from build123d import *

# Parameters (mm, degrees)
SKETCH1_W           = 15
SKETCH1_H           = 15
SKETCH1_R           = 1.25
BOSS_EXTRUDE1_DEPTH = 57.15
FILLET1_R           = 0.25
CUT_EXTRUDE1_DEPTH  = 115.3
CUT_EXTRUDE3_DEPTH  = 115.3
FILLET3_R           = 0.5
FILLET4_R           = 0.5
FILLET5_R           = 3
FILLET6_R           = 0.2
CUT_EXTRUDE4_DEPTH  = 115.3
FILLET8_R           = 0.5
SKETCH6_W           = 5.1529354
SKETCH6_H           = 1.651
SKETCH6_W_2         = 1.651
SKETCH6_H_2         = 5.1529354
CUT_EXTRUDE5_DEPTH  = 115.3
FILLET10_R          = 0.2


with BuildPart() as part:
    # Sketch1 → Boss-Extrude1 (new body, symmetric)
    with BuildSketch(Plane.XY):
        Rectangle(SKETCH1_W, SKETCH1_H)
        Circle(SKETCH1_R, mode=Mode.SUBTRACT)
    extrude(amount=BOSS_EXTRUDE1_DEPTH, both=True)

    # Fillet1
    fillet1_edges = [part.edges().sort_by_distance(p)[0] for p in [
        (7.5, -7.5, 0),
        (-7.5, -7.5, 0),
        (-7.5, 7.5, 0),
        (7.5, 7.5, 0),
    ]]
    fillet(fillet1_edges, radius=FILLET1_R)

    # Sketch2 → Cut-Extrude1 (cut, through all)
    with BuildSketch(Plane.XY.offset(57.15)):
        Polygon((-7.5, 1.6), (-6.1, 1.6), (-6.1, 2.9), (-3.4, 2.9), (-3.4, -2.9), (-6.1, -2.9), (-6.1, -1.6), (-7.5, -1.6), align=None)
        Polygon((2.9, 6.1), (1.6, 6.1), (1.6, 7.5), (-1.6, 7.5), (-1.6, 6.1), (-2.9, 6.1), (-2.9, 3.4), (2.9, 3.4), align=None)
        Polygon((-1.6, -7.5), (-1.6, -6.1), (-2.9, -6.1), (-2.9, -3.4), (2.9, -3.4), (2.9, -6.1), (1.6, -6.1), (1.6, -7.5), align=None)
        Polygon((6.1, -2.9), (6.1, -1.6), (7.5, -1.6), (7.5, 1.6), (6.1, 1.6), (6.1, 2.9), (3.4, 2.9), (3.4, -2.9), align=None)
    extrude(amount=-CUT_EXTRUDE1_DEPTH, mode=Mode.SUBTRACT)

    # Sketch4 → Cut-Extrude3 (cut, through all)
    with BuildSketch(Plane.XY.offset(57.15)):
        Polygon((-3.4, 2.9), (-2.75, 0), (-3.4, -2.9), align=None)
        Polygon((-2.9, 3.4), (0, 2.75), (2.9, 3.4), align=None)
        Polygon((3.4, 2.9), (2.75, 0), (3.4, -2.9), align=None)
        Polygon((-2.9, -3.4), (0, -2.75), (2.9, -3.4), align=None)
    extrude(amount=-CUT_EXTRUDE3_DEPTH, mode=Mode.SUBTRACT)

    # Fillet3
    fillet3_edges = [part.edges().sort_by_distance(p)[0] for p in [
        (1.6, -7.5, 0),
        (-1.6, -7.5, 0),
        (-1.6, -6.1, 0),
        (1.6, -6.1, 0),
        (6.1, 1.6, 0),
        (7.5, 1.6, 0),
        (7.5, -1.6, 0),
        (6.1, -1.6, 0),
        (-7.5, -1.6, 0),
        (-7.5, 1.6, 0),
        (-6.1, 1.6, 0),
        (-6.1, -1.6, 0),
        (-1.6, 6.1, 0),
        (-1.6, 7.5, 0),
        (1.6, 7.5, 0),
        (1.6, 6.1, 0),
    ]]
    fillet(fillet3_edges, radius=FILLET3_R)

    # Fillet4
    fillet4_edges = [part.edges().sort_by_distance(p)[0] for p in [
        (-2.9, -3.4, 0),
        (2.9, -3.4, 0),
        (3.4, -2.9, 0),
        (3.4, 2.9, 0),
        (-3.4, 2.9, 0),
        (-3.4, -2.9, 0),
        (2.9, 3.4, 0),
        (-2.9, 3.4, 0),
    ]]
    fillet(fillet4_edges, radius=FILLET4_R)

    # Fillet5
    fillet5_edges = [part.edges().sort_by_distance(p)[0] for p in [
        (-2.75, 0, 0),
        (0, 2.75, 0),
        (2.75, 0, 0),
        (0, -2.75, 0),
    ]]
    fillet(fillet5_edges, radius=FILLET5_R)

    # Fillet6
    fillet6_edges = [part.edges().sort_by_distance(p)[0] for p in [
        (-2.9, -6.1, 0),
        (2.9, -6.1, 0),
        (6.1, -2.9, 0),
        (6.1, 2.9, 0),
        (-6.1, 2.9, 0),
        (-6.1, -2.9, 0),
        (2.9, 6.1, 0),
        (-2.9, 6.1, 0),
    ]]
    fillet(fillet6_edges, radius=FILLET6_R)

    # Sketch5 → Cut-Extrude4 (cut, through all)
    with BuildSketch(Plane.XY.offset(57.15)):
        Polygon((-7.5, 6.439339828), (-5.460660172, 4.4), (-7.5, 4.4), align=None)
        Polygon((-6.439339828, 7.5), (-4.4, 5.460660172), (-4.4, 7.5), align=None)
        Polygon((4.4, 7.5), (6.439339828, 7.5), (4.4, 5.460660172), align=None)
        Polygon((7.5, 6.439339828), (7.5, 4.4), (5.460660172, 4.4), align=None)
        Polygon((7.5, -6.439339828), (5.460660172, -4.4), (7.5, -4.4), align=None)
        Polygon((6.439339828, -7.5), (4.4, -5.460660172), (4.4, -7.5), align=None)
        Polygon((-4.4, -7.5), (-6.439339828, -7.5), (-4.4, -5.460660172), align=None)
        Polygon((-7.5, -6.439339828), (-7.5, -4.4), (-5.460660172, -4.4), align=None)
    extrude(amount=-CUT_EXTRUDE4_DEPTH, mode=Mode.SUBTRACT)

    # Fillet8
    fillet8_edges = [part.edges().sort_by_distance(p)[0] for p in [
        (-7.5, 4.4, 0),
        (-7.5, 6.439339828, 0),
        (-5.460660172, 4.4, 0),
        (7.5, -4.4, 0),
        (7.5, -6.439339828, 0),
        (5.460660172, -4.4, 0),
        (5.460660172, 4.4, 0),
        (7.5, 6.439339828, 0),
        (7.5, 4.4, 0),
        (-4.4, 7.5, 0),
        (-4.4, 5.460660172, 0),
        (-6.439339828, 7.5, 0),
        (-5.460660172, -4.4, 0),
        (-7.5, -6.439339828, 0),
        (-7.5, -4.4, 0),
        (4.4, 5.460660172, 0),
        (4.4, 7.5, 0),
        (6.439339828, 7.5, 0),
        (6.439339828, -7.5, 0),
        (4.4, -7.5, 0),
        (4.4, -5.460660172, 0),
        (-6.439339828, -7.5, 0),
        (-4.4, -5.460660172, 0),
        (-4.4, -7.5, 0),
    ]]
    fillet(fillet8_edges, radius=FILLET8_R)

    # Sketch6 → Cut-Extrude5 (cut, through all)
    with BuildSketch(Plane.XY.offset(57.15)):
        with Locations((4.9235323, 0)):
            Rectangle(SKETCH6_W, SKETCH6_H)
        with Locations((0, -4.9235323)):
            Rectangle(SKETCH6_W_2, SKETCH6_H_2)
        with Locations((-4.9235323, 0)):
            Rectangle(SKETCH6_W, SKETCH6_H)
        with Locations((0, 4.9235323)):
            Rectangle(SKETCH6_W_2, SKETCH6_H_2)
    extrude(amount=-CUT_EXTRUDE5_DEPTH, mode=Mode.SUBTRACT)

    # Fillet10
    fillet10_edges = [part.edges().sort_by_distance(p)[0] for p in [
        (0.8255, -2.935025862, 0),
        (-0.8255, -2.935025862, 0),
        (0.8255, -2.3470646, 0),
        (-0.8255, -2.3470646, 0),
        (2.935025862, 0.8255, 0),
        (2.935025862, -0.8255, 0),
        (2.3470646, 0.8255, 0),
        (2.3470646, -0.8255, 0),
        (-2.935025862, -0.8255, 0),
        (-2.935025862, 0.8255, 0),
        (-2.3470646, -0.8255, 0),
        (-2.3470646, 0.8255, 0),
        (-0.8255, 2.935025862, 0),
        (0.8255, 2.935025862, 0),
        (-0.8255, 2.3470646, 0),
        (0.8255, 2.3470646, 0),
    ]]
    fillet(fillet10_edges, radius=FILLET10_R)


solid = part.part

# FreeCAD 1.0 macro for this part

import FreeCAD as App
import Part
import Sketcher
from FreeCAD import Vector


def edges_at(feature, points):
    """Names of the edges that pass closest to the given points."""
    edges = feature.Shape.Edges
    near = lambda p: min(range(len(edges)), key=lambda i: edges[i].distToShape(Part.Vertex(*p))[0])
    return sorted({f"Edge{near(p) + 1}" for p in points})


def add_polygon(sketch, points):
    """Adds a closed chain of lines whose ends are joined by coincident constraints."""
    first, n = sketch.GeometryCount, len(points)
    for a, b in zip(points, points[1:] + points[:1]):
        sketch.addGeometry(Part.LineSegment(App.Vector(*a, 0), App.Vector(*b, 0)), False)
    for i in range(n):
        sketch.addConstraint(Sketcher.Constraint("Coincident", first + i, 2, first + (i + 1) % n, 1))

doc = App.newDocument("Part")
body = doc.addObject("PartDesign::Body", "Body")

# Sketch on XY plane
sketch1 = body.newObject("Sketcher::SketchObject", "Sketch")
sketch1.AttachmentSupport = (doc.getObject("XY_Plane"), [""])
sketch1.MapMode = "FlatFace"
add_polygon(sketch1, [(-7.5, 7.5), (-7.5, -7.5), (7.5, -7.5), (7.5, 7.5)])  # lines 0-3
sketch1.addGeometry(Part.Circle(Vector(0, 0, 0), Vector(0, 0, 1), 1.25), False)  # 4
sketch1.addConstraint(Sketcher.Constraint("Vertical", 0))
sketch1.addConstraint(Sketcher.Constraint("Horizontal", 1))
sketch1.addConstraint(Sketcher.Constraint("Vertical", 2))
sketch1.addConstraint(Sketcher.Constraint("Horizontal", 3))
sketch1.addConstraint(Sketcher.Constraint("Coincident", 4, 3, -1, 1))
sketch1.addConstraint(Sketcher.Constraint("Symmetric", 0, 2, 2, 2, -1, 1))
sketch1.addConstraint(Sketcher.Constraint("Equal", 3, 0))
sketch1.addConstraint(Sketcher.Constraint("Diameter", 4, 2.5))
sketch1.addConstraint(Sketcher.Constraint("DistanceX", 1, 1, 1, 2, 15.0))
pad1 = body.newObject("PartDesign::Pad", "Pad")
pad1.Profile = sketch1
pad1.Length = 114.3
pad1.Midplane = True
doc.recompute()

fillet = body.newObject("PartDesign::Fillet", "Fillet")
fillet.Base = (pad1, edges_at(pad1, [
    (7.5, -7.5, 0),
    (-7.5, -7.5, 0),
    (-7.5, 7.5, 0),
    (7.5, 7.5, 0),
]))
fillet.Radius = 0.25

# Sketch on XY plane
sketch2 = body.newObject("Sketcher::SketchObject", "Sketch001")
sketch2.AttachmentSupport = (doc.getObject("XY_Plane"), [""])
sketch2.MapMode = "FlatFace"
sketch2.AttachmentOffset = App.Placement(Vector(0, 0, 57.15), App.Rotation())
add_polygon(sketch2, [(-6.1, 1.6), (-7.5, 1.6), (-7.5, -1.6), (-6.1, -1.6), (-6.1, -2.9), (-3.4, -2.9), (-3.4, 2.9), (-6.1, 2.9)])  # lines 0-7
add_polygon(sketch2, [(2.9, 6.1), (1.6, 6.1), (1.6, 7.5), (-1.6, 7.5), (-1.6, 6.1), (-2.9, 6.1), (-2.9, 3.4), (2.9, 3.4)])  # lines 8-15
add_polygon(sketch2, [(-1.6, -6.1), (-1.6, -7.5), (1.6, -7.5), (1.6, -6.1), (2.9, -6.1), (2.9, -3.4), (-2.9, -3.4), (-2.9, -6.1)])  # lines 16-23
add_polygon(sketch2, [(6.1, -2.9), (6.1, -1.6), (7.5, -1.6), (7.5, 1.6), (6.1, 1.6), (6.1, 2.9), (3.4, 2.9), (3.4, -2.9)])  # lines 24-31
sketch2.addConstraint(Sketcher.Constraint("Horizontal", 0))
sketch2.addConstraint(Sketcher.Constraint("Vertical", 1))
sketch2.addConstraint(Sketcher.Constraint("Horizontal", 2))
sketch2.addConstraint(Sketcher.Constraint("Vertical", 3))
sketch2.addConstraint(Sketcher.Constraint("Horizontal", 4))
sketch2.addConstraint(Sketcher.Constraint("Vertical", 5))
sketch2.addConstraint(Sketcher.Constraint("Horizontal", 6))
sketch2.addConstraint(Sketcher.Constraint("Vertical", 7))
sketch2.addConstraint(Sketcher.Constraint("Horizontal", 8))
sketch2.addConstraint(Sketcher.Constraint("Vertical", 9))
sketch2.addConstraint(Sketcher.Constraint("Horizontal", 10))
sketch2.addConstraint(Sketcher.Constraint("Vertical", 11))
sketch2.addConstraint(Sketcher.Constraint("Horizontal", 12))
sketch2.addConstraint(Sketcher.Constraint("Vertical", 13))
sketch2.addConstraint(Sketcher.Constraint("Horizontal", 14))
sketch2.addConstraint(Sketcher.Constraint("Vertical", 15))
sketch2.addConstraint(Sketcher.Constraint("Vertical", 16))
sketch2.addConstraint(Sketcher.Constraint("Horizontal", 17))
sketch2.addConstraint(Sketcher.Constraint("Vertical", 18))
sketch2.addConstraint(Sketcher.Constraint("Horizontal", 19))
sketch2.addConstraint(Sketcher.Constraint("Vertical", 20))
sketch2.addConstraint(Sketcher.Constraint("Horizontal", 21))
sketch2.addConstraint(Sketcher.Constraint("Vertical", 22))
sketch2.addConstraint(Sketcher.Constraint("Horizontal", 23))
sketch2.addConstraint(Sketcher.Constraint("Vertical", 24))
sketch2.addConstraint(Sketcher.Constraint("Horizontal", 25))
sketch2.addConstraint(Sketcher.Constraint("Vertical", 26))
sketch2.addConstraint(Sketcher.Constraint("Horizontal", 27))
sketch2.addConstraint(Sketcher.Constraint("Vertical", 28))
sketch2.addConstraint(Sketcher.Constraint("Horizontal", 29))
sketch2.addConstraint(Sketcher.Constraint("Vertical", 30))
sketch2.addConstraint(Sketcher.Constraint("Horizontal", 31))
sketch2.addConstraint(Sketcher.Constraint("Symmetric", 9, 2, 16, 2, -1, 1))
sketch2.addConstraint(Sketcher.Constraint("Symmetric", 11, 2, 18, 2, -1, 1))
sketch2.addConstraint(Sketcher.Constraint("Symmetric", 13, 2, 20, 2, -1, 1))
sketch2.addConstraint(Sketcher.Constraint("Symmetric", 15, 2, 22, 2, -1, 1))
sketch2.addConstraint(Sketcher.Constraint("Symmetric", 7, 2, 24, 2, -1, 1))
sketch2.addConstraint(Sketcher.Constraint("Symmetric", 1, 2, 26, 2, -1, 1))
sketch2.addConstraint(Sketcher.Constraint("Symmetric", 3, 2, 28, 2, -1, 1))
sketch2.addConstraint(Sketcher.Constraint("Symmetric", 5, 2, 30, 2, -1, 1))
sketch2.addConstraint(Sketcher.Constraint("Symmetric", 8, 2, 11, 2, -2))
sketch2.addConstraint(Sketcher.Constraint("Symmetric", 2, 2, 24, 2, -2))
sketch2.addConstraint(Sketcher.Constraint("Horizontal", 6, 2, 28, 2))
sketch2.addConstraint(Sketcher.Constraint("Vertical", 15, 2, 19, 2))
sketch2.addConstraint(Sketcher.Constraint("Equal", 17, 1))
sketch2.addConstraint(Sketcher.Constraint("Equal", 23, 3))
sketch2.addConstraint(Sketcher.Constraint("Equal", 27, 9))
sketch2.addConstraint(Sketcher.Constraint("Equal", 31, 13))
sketch2.addConstraint(Sketcher.Constraint("DistanceX", 0, 2, 0, 1, 1.4))
sketch2.addConstraint(Sketcher.Constraint("DistanceX", 4, 1, 4, 2, 2.7))
sketch2.addConstraint(Sketcher.Constraint("DistanceX", 8, 2, 8, 1, 1.3))
sketch2.addConstraint(Sketcher.Constraint("DistanceX", 10, 2, 10, 1, 3.2))
sketch2.addConstraint(Sketcher.Constraint("DistanceX", 5, 2, 8, 2, 5.0))
sketch2.addConstraint(Sketcher.Constraint("DistanceY", 4, 2, 8, 2, 9.0))
pocket1 = body.newObject("PartDesign::Pocket", "Pocket")
pocket1.Profile = sketch2
pocket1.Type = "ThroughAll"

# Sketch on XY plane
sketch3 = body.newObject("Sketcher::SketchObject", "Sketch002")
sketch3.AttachmentSupport = (doc.getObject("XY_Plane"), [""])
sketch3.MapMode = "FlatFace"
sketch3.AttachmentOffset = App.Placement(Vector(0, 0, 57.15), App.Rotation())
add_polygon(sketch3, [(-2.75, 0), (-3.4, 2.9), (-3.4, -2.9)])  # lines 0-2
add_polygon(sketch3, [(-2.9, 3.4), (0, 2.75), (2.9, 3.4)])  # lines 3-5
add_polygon(sketch3, [(3.4, 2.9), (2.75, 0), (3.4, -2.9)])  # lines 6-8
add_polygon(sketch3, [(0, -2.75), (-2.9, -3.4), (2.9, -3.4)])  # lines 9-11
sketch3.addConstraint(Sketcher.Constraint("Vertical", 1))
sketch3.addConstraint(Sketcher.Constraint("Horizontal", 5))
sketch3.addConstraint(Sketcher.Constraint("Vertical", 8))
sketch3.addConstraint(Sketcher.Constraint("Horizontal", 10))
sketch3.addConstraint(Sketcher.Constraint("Symmetric", 2, 2, 6, 2, -1, 1))
sketch3.addConstraint(Sketcher.Constraint("Symmetric", 0, 2, 7, 2, -1, 1))
sketch3.addConstraint(Sketcher.Constraint("Symmetric", 4, 2, 9, 2, -1, 1))
sketch3.addConstraint(Sketcher.Constraint("Symmetric", 3, 2, 11, 2, -1, 1))
sketch3.addConstraint(Sketcher.Constraint("PointOnObject", 2, 2, -1))
sketch3.addConstraint(Sketcher.Constraint("PointOnObject", 3, 2, -2))
sketch3.addConstraint(Sketcher.Constraint("Perpendicular", 2, 3))
sketch3.addConstraint(Sketcher.Constraint("Perpendicular", 0, 4))
sketch3.addConstraint(Sketcher.Constraint("Perpendicular", 3, 6))
sketch3.addConstraint(Sketcher.Constraint("Perpendicular", 6, 11))
sketch3.addConstraint(Sketcher.Constraint("Horizontal", 1, 2, 7, 2))
sketch3.addConstraint(Sketcher.Constraint("Equal", 10, 1))
sketch3.addConstraint(Sketcher.Constraint("DistanceX", 5, 2, 5, 1, 5.8))
sketch3.addConstraint(Sketcher.Constraint("DistanceX", 0, 2, -1, 1, 3.4))
sketch3.addConstraint(Sketcher.Constraint("DistanceY", -1, 1, 4, 2, 3.4))
sketch3.addConstraint(Sketcher.Constraint("DistanceX", 2, 2, 6, 2, 5.5))
pocket2 = body.newObject("PartDesign::Pocket", "Pocket001")
pocket2.Profile = sketch3
pocket2.Type = "ThroughAll"
doc.recompute()

fillet2 = body.newObject("PartDesign::Fillet", "Fillet001")
fillet2.Base = (pocket2, edges_at(pocket2, [
    (1.6, -7.5, 0),
    (-1.6, -7.5, 0),
    (-1.6, -6.1, 0),
    (1.6, -6.1, 0),
    (6.1, 1.6, 0),
    (7.5, 1.6, 0),
    (7.5, -1.6, 0),
    (6.1, -1.6, 0),
    (-7.5, -1.6, 0),
    (-7.5, 1.6, 0),
    (-6.1, 1.6, 0),
    (-6.1, -1.6, 0),
    (-1.6, 6.1, 0),
    (-1.6, 7.5, 0),
    (1.6, 7.5, 0),
    (1.6, 6.1, 0),
]))
fillet2.Radius = 0.5
doc.recompute()

fillet3 = body.newObject("PartDesign::Fillet", "Fillet002")
fillet3.Base = (fillet2, edges_at(fillet2, [
    (-2.9, -3.4, 0),
    (2.9, -3.4, 0),
    (3.4, -2.9, 0),
    (3.4, 2.9, 0),
    (-3.4, 2.9, 0),
    (-3.4, -2.9, 0),
    (2.9, 3.4, 0),
    (-2.9, 3.4, 0),
]))
fillet3.Radius = 0.5
doc.recompute()

fillet4 = body.newObject("PartDesign::Fillet", "Fillet003")
fillet4.Base = (fillet3, edges_at(fillet3, [
    (-2.75, 0, 0),
    (0, 2.75, 0),
    (2.75, 0, 0),
    (0, -2.75, 0),
]))
fillet4.Radius = 3
doc.recompute()

fillet5 = body.newObject("PartDesign::Fillet", "Fillet004")
fillet5.Base = (fillet4, edges_at(fillet4, [
    (-2.9, -6.1, 0),
    (2.9, -6.1, 0),
    (6.1, -2.9, 0),
    (6.1, 2.9, 0),
    (-6.1, 2.9, 0),
    (-6.1, -2.9, 0),
    (2.9, 6.1, 0),
    (-2.9, 6.1, 0),
]))
fillet5.Radius = 0.2

# Sketch on XY plane
sketch4 = body.newObject("Sketcher::SketchObject", "Sketch003")
sketch4.AttachmentSupport = (doc.getObject("XY_Plane"), [""])
sketch4.MapMode = "FlatFace"
sketch4.AttachmentOffset = App.Placement(Vector(0, 0, 57.15), App.Rotation())
add_polygon(sketch4, [(-5.46066, 4.4), (-7.5, 6.43934), (-7.5, 4.4)])  # lines 0-2
add_polygon(sketch4, [(-6.43934, 7.5), (-4.4, 5.46066), (-4.4, 7.5)])  # lines 3-5
add_polygon(sketch4, [(6.43934, 7.5), (4.4, 7.5), (4.4, 5.46066)])  # lines 6-8
add_polygon(sketch4, [(7.5, 4.4), (7.5, 6.43934), (5.46066, 4.4)])  # lines 9-11
add_polygon(sketch4, [(5.46066, -4.4), (7.5, -6.43934), (7.5, -4.4)])  # lines 12-14
add_polygon(sketch4, [(6.43934, -7.5), (4.4, -5.46066), (4.4, -7.5)])  # lines 15-17
add_polygon(sketch4, [(-6.43934, -7.5), (-4.4, -7.5), (-4.4, -5.46066)])  # lines 18-20
add_polygon(sketch4, [(-7.5, -4.4), (-7.5, -6.43934), (-5.46066, -4.4)])  # lines 21-23
sketch4.addConstraint(Sketcher.Constraint("Vertical", 1))
sketch4.addConstraint(Sketcher.Constraint("Horizontal", 2))
sketch4.addConstraint(Sketcher.Constraint("Vertical", 4))
sketch4.addConstraint(Sketcher.Constraint("Horizontal", 5))
sketch4.addConstraint(Sketcher.Constraint("Horizontal", 6))
sketch4.addConstraint(Sketcher.Constraint("Vertical", 7))
sketch4.addConstraint(Sketcher.Constraint("Vertical", 9))
sketch4.addConstraint(Sketcher.Constraint("Horizontal", 11))
sketch4.addConstraint(Sketcher.Constraint("Vertical", 13))
sketch4.addConstraint(Sketcher.Constraint("Horizontal", 14))
sketch4.addConstraint(Sketcher.Constraint("Vertical", 16))
sketch4.addConstraint(Sketcher.Constraint("Horizontal", 17))
sketch4.addConstraint(Sketcher.Constraint("Horizontal", 18))
sketch4.addConstraint(Sketcher.Constraint("Vertical", 19))
sketch4.addConstraint(Sketcher.Constraint("Vertical", 21))
sketch4.addConstraint(Sketcher.Constraint("Horizontal", 23))
sketch4.addConstraint(Sketcher.Constraint("Symmetric", 0, 2, 12, 2, -1, 1))
sketch4.addConstraint(Sketcher.Constraint("Symmetric", 2, 2, 14, 2, -1, 1))
sketch4.addConstraint(Sketcher.Constraint("Symmetric", 3, 2, 15, 2, -1, 1))
sketch4.addConstraint(Sketcher.Constraint("Symmetric", 5, 2, 17, 2, -1, 1))
sketch4.addConstraint(Sketcher.Constraint("Symmetric", 6, 2, 18, 2, -1, 1))
sketch4.addConstraint(Sketcher.Constraint("Symmetric", 9, 2, 21, 2, -1, 1))
sketch4.addConstraint(Sketcher.Constraint("Symmetric", 10, 2, 22, 2, -1, 1))
sketch4.addConstraint(Sketcher.Constraint("Symmetric", 4, 2, 6, 2, -2))
sketch4.addConstraint(Sketcher.Constraint("Symmetric", 0, 2, 9, 2, -2))
sketch4.addConstraint(Sketcher.Constraint("Symmetric", 2, 2, 10, 2, -2))
sketch4.addConstraint(Sketcher.Constraint("Parallel", 0, 3))
sketch4.addConstraint(Sketcher.Constraint("Perpendicular", 3, 8))
sketch4.addConstraint(Sketcher.Constraint("Parallel", 8, 10))
sketch4.addConstraint(Sketcher.Constraint("Perpendicular", 15, 20))
sketch4.addConstraint(Sketcher.Constraint("Horizontal", 3, 2, 7, 2))
sketch4.addConstraint(Sketcher.Constraint("Horizontal", 15, 2, 19, 2))
sketch4.addConstraint(Sketcher.Constraint("Equal", 2, 5))
sketch4.addConstraint(Sketcher.Constraint("DistanceX", 0, 2, -1, 1, 7.5))
sketch4.addConstraint(Sketcher.Constraint("DistanceY", -1, 1, 1, 2, 4.4))
sketch4.addConstraint(Sketcher.Constraint("DistanceX", 3, 2, -1, 1, 4.4))
sketch4.addConstraint(Sketcher.Constraint("DistanceY", -1, 1, 4, 2, 7.5))
sketch4.addConstraint(Sketcher.Constraint("DistanceX", 2, 1, 2, 2, 2.03934))
pocket3 = body.newObject("PartDesign::Pocket", "Pocket002")
pocket3.Profile = sketch4
pocket3.Type = "ThroughAll"
doc.recompute()

fillet6 = body.newObject("PartDesign::Fillet", "Fillet005")
fillet6.Base = (pocket3, edges_at(pocket3, [
    (-7.5, 4.4, 0),
    (-7.5, 6.439, 0),
    (-5.461, 4.4, 0),
    (7.5, -4.4, 0),
    (7.5, -6.439, 0),
    (5.461, -4.4, 0),
    (5.461, 4.4, 0),
    (7.5, 6.439, 0),
    (7.5, 4.4, 0),
    (-4.4, 7.5, 0),
    (-4.4, 5.461, 0),
    (-6.439, 7.5, 0),
    (-5.461, -4.4, 0),
    (-7.5, -6.439, 0),
    (-7.5, -4.4, 0),
    (4.4, 5.461, 0),
    (4.4, 7.5, 0),
    (6.439, 7.5, 0),
    (6.439, -7.5, 0),
    (4.4, -7.5, 0),
    (4.4, -5.461, 0),
    (-6.439, -7.5, 0),
    (-4.4, -5.461, 0),
    (-4.4, -7.5, 0),
]))
fillet6.Radius = 0.5

# Sketch on XY plane
sketch5 = body.newObject("Sketcher::SketchObject", "Sketch004")
sketch5.AttachmentSupport = (doc.getObject("XY_Plane"), [""])
sketch5.MapMode = "FlatFace"
sketch5.AttachmentOffset = App.Placement(Vector(0, 0, 57.15), App.Rotation())
add_polygon(sketch5, [(2.347065, 0.8255), (2.347065, -0.8255), (7.5, -0.8255), (7.5, 0.8255)])  # lines 0-3
add_polygon(sketch5, [(-0.8255, -2.347065), (-0.8255, -7.5), (0.8255, -7.5), (0.8255, -2.347065)])  # lines 4-7
add_polygon(sketch5, [(-7.5, 0.8255), (-7.5, -0.8255), (-2.347065, -0.8255), (-2.347065, 0.8255)])  # lines 8-11
add_polygon(sketch5, [(-0.8255, 7.5), (-0.8255, 2.347065), (0.8255, 2.347065), (0.8255, 7.5)])  # lines 12-15
sketch5.addConstraint(Sketcher.Constraint("Vertical", 0))
sketch5.addConstraint(Sketcher.Constraint("Horizontal", 1))
sketch5.addConstraint(Sketcher.Constraint("Vertical", 2))
sketch5.addConstraint(Sketcher.Constraint("Horizontal", 3))
sketch5.addConstraint(Sketcher.Constraint("Vertical", 4))
sketch5.addConstraint(Sketcher.Constraint("Horizontal", 5))
sketch5.addConstraint(Sketcher.Constraint("Vertical", 6))
sketch5.addConstraint(Sketcher.Constraint("Horizontal", 7))
sketch5.addConstraint(Sketcher.Constraint("Vertical", 8))
sketch5.addConstraint(Sketcher.Constraint("Horizontal", 9))
sketch5.addConstraint(Sketcher.Constraint("Vertical", 10))
sketch5.addConstraint(Sketcher.Constraint("Horizontal", 11))
sketch5.addConstraint(Sketcher.Constraint("Vertical", 12))
sketch5.addConstraint(Sketcher.Constraint("Horizontal", 13))
sketch5.addConstraint(Sketcher.Constraint("Vertical", 14))
sketch5.addConstraint(Sketcher.Constraint("Horizontal", 15))
sketch5.addConstraint(Sketcher.Constraint("Symmetric", 2, 2, 8, 2, -1, 1))
sketch5.addConstraint(Sketcher.Constraint("Symmetric", 0, 2, 10, 2, -1, 1))
sketch5.addConstraint(Sketcher.Constraint("Symmetric", 6, 2, 12, 2, -1, 1))
sketch5.addConstraint(Sketcher.Constraint("Symmetric", 4, 2, 14, 2, -1, 1))
sketch5.addConstraint(Sketcher.Constraint("Horizontal", 1, 2, 8, 2))
sketch5.addConstraint(Sketcher.Constraint("Vertical", 7, 2, 12, 2))
sketch5.addConstraint(Sketcher.Constraint("Equal", 15, 0))
sketch5.addConstraint(Sketcher.Constraint("Equal", 11, 4))
sketch5.addConstraint(Sketcher.Constraint("DistanceX", -1, 1, 1, 2, 7.5))
sketch5.addConstraint(Sketcher.Constraint("DistanceY", 4, 2, -1, 1, 7.5))
sketch5.addConstraint(Sketcher.Constraint("DistanceX", 5, 1, 5, 2, 1.651))
sketch5.addConstraint(Sketcher.Constraint("DistanceX", 1, 1, 1, 2, 5.152935))
pocket4 = body.newObject("PartDesign::Pocket", "Pocket003")
pocket4.Profile = sketch5
pocket4.Type = "ThroughAll"
doc.recompute()

fillet7 = body.newObject("PartDesign::Fillet", "Fillet006")
fillet7.Base = (pocket4, edges_at(pocket4, [
    (0.826, -2.935, 0),
    (-0.826, -2.935, 0),
    (0.826, -2.347, 0),
    (-0.826, -2.347, 0),
    (2.935, 0.826, 0),
    (2.935, -0.826, 0),
    (2.347, 0.826, 0),
    (2.347, -0.826, 0),
    (-2.935, -0.826, 0),
    (-2.935, 0.826, 0),
    (-2.347, -0.826, 0),
    (-2.347, 0.826, 0),
    (-0.826, 2.935, 0),
    (0.826, 2.935, 0),
    (-0.826, 2.347, 0),
    (0.826, 2.347, 0),
]))
fillet7.Radius = 0.2

doc.recompute()
